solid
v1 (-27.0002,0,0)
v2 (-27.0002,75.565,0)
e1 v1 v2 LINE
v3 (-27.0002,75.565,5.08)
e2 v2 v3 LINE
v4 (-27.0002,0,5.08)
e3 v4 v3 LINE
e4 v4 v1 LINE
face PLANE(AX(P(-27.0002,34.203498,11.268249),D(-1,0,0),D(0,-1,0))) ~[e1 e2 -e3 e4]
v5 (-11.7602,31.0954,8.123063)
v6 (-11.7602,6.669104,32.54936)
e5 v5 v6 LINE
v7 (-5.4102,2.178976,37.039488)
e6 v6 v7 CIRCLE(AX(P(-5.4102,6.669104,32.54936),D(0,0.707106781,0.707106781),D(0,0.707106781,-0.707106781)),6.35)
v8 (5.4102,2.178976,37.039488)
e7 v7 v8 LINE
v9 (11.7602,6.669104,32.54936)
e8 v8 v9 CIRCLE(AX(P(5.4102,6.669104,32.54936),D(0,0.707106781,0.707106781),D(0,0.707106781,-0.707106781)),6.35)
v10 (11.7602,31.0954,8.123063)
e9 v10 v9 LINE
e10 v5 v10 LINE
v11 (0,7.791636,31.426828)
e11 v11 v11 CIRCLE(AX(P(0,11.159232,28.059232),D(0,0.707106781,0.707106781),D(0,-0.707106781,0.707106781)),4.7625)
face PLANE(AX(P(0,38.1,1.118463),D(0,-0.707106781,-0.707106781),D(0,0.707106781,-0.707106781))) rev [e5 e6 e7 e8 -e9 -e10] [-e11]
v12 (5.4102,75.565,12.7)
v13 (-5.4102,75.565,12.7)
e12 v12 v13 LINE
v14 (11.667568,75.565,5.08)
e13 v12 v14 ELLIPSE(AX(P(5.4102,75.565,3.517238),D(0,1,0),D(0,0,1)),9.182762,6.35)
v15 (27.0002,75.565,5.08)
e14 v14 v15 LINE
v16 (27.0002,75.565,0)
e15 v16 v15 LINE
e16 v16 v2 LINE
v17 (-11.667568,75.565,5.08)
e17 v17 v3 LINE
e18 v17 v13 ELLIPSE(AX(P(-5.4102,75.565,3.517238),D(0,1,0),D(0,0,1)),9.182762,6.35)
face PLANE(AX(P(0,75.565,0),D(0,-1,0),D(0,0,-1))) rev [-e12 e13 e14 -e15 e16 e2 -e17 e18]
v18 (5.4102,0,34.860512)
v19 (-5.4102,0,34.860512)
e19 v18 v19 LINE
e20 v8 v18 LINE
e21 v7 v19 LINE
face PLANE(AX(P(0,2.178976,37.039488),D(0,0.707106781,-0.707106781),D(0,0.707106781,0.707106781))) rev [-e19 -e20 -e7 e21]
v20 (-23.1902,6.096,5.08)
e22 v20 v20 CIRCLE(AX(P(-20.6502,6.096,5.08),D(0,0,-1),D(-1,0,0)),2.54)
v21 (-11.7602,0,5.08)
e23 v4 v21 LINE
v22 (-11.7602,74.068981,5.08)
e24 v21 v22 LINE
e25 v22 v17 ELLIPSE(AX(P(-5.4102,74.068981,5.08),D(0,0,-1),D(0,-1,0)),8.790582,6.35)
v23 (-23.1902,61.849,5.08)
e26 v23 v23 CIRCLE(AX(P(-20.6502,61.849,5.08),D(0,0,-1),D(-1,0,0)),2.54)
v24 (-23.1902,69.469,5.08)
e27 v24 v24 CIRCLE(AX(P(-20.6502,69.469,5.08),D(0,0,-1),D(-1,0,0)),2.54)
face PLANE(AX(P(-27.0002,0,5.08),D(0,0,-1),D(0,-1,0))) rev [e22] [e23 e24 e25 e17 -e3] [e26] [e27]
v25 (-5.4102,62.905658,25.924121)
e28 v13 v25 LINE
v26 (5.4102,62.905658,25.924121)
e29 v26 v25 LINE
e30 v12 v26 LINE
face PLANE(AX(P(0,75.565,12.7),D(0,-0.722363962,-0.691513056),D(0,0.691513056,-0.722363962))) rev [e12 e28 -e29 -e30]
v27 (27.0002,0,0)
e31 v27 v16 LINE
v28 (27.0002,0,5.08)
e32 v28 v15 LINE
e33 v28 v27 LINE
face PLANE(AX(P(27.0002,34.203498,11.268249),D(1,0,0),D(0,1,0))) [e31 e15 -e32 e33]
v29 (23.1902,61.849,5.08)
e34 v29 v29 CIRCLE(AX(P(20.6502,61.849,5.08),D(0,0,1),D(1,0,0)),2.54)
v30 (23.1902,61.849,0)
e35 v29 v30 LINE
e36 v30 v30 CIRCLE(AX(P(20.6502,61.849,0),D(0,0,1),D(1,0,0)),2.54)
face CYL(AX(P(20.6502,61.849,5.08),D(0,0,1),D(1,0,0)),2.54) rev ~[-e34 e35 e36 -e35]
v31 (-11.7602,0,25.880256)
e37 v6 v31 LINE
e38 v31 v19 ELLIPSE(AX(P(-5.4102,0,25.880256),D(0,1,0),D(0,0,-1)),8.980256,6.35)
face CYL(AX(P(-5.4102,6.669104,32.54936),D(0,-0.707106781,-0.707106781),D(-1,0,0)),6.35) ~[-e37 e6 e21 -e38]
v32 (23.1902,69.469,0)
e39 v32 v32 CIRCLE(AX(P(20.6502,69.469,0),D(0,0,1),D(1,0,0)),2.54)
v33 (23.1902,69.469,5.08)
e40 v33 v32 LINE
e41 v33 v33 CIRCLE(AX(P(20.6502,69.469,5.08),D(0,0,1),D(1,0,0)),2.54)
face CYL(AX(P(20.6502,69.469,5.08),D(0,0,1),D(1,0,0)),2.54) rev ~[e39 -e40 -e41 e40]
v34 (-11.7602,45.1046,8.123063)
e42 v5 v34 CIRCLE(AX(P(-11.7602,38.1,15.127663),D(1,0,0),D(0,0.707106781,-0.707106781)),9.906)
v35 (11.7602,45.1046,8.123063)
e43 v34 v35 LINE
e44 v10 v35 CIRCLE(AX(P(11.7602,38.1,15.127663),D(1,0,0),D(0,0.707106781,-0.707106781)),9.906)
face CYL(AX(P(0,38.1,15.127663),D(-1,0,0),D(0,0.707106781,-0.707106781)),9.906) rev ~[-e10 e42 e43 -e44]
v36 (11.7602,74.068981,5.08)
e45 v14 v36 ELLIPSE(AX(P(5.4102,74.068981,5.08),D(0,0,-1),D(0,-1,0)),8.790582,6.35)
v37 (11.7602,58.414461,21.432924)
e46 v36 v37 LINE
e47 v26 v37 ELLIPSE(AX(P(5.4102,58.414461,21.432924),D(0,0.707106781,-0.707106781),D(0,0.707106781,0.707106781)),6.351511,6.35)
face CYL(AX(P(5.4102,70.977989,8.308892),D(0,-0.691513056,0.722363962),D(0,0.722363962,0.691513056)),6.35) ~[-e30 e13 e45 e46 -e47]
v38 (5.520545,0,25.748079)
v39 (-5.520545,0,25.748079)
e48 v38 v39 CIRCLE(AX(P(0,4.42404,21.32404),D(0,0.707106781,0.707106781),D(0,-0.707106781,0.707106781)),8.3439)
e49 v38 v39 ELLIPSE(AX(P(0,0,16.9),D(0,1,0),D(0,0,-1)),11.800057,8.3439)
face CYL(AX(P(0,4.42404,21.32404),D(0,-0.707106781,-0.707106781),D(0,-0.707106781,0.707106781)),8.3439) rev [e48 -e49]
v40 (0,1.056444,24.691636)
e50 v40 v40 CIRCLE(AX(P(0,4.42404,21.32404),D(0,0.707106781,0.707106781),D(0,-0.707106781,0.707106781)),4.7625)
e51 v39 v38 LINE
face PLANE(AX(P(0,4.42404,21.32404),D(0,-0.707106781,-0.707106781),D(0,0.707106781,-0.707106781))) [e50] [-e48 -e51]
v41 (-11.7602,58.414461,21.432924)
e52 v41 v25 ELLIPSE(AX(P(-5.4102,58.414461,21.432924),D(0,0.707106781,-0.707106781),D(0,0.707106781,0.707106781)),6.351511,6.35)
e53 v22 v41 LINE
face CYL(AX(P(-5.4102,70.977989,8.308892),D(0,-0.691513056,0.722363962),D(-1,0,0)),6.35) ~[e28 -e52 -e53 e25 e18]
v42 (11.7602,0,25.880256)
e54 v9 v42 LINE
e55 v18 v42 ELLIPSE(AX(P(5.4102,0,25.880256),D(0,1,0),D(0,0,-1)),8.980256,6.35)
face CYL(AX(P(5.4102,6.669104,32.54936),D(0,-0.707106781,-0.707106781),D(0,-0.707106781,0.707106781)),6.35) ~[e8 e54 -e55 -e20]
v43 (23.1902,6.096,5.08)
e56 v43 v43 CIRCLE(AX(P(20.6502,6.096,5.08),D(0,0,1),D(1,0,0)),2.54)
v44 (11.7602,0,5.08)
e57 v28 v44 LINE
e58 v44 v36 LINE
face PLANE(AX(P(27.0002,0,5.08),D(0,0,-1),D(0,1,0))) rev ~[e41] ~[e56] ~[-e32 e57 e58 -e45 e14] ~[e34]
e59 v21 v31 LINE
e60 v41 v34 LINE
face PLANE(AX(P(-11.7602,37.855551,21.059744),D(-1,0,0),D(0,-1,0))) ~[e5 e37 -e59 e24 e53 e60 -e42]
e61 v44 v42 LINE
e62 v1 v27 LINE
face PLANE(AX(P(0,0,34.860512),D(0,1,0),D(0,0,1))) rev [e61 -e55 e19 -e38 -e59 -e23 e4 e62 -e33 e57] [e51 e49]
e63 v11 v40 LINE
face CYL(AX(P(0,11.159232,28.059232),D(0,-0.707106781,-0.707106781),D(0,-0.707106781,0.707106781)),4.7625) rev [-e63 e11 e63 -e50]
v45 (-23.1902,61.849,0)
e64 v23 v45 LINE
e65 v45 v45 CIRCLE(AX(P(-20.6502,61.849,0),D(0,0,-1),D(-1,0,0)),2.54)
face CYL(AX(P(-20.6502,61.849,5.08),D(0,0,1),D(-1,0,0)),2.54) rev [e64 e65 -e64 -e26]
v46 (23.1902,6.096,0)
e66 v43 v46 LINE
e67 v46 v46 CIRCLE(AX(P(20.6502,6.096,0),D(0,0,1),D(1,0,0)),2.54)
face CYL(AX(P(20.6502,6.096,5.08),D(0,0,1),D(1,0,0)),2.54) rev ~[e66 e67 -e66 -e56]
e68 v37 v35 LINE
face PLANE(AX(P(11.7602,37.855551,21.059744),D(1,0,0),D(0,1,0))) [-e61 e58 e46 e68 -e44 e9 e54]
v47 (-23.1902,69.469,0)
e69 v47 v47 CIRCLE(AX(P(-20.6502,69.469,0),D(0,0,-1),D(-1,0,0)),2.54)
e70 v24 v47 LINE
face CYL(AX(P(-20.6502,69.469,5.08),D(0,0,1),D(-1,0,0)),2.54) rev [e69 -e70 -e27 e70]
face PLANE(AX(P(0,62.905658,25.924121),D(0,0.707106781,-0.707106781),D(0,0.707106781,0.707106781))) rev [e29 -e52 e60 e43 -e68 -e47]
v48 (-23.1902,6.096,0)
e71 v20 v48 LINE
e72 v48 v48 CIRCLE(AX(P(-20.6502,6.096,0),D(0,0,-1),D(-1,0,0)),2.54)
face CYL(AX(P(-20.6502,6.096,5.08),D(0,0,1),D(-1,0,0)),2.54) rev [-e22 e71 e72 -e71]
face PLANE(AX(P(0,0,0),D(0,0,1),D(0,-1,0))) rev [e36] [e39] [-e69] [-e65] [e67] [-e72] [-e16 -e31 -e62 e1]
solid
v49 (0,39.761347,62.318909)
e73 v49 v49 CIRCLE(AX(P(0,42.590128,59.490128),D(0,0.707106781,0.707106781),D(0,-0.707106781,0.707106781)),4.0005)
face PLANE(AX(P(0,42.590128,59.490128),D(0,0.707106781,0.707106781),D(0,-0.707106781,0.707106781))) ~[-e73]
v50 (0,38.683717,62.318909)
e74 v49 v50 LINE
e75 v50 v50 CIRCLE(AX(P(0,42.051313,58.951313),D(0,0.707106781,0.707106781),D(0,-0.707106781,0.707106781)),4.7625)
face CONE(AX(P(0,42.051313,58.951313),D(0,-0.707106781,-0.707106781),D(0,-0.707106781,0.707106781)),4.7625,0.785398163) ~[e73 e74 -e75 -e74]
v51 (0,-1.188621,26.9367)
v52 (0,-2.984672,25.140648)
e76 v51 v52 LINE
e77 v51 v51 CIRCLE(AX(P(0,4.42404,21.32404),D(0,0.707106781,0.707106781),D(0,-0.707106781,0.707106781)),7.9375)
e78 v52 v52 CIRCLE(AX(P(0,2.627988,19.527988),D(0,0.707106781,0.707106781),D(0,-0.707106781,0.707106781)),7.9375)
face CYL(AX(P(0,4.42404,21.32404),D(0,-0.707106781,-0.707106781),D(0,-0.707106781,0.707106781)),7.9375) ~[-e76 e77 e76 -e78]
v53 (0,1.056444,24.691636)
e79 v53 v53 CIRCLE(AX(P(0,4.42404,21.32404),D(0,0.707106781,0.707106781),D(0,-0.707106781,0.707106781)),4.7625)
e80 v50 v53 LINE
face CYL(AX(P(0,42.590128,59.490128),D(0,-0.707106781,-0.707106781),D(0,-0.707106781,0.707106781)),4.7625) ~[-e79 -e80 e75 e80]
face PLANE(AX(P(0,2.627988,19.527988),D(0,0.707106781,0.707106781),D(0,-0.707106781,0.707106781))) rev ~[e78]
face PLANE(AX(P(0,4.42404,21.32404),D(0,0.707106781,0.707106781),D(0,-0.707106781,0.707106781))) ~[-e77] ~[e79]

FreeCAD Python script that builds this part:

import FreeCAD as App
import Part
import Sketcher
Q = App.Units.Quantity


def edges_at(feature, points):
    """Names of the edges that pass closest to the given points."""
    edges = feature.Shape.Edges
    near = lambda p: min(range(len(edges)), key=lambda i: edges[i].distToShape(Part.Vertex(*p))[0])
    return sorted({f"Edge{near(p) + 1}" for p in points})


def add_polygon(sketch, points):
    """Adds a closed chain of lines whose ends are joined by coincident constraints."""
    first, n = sketch.GeometryCount, len(points)
    for a, b in zip(points, points[1:] + points[:1]):
        sketch.addGeometry(Part.LineSegment(App.Vector(*a, 0), App.Vector(*b, 0)), False)
    for i in range(n):
        sketch.addConstraint(Sketcher.Constraint("Coincident", first + i, 2, first + (i + 1) % n, 1))

doc = App.newDocument("Part")
body = doc.addObject("PartDesign::Body", "Body")

# Sketch on YZ plane
sketch1 = body.newObject("Sketcher::SketchObject", "Sketch")
sketch1.AttachmentSupport = (doc.getObject("YZ_Plane"), [""])
sketch1.MapMode = "FlatFace"
add_polygon(sketch1, [(0, 34.9), (0, 0), (75.6, 0), (75.6, 12.7), (62.9, 25.9), (38.1, 1.1), (2.2, 37)])  # lines 0-6
sketch1.addConstraint([
    Sketcher.Constraint("Vertical", 0),
    Sketcher.Constraint("Horizontal", 1),
    Sketcher.Constraint("Vertical", 2),
    Sketcher.Constraint("Coincident", 0, 2, -1, 1),
    Sketcher.Constraint("Perpendicular", 4, 5),
    Sketcher.Constraint("Perpendicular", 5, 6),
    Sketcher.Constraint("Distance", 5, Q("2 in")),
    Sketcher.Constraint("DistanceY", 2, 1, 2, 2, Q("0.5 in")),
    Sketcher.Constraint("Angle", 4, Q("-135 deg")),
    Sketcher.Constraint("DistanceX", -1, 1, 4, 2, Q("1.5 in")),
    Sketcher.Constraint("DistanceX", 1, 1, 1, 2, Q("2.975 in")),
    Sketcher.Constraint("Angle", 3, Q("133.75 deg")),
    Sketcher.Constraint("Distance", 3, Q("18.306729 mm")),
])
pad1 = body.newObject("PartDesign::Pad", "Pad")
pad1.Profile = sketch1
pad1.Length = Q("1.063 in")
doc.recompute()

fillet = body.newObject("PartDesign::Fillet", "Fillet")
fillet.Base = (pad1, edges_at(pad1, [(13.5, 38.1, 1.118)]))
fillet.Radius = Q("0.39 in")

# Sketch on YZ plane
sketch2 = body.newObject("Sketcher::SketchObject", "Sketch001")
sketch2.AttachmentSupport = (doc.getObject("YZ_Plane"), [""])
sketch2.MapMode = "FlatFace"
sketch2.AttachmentOffset = App.Placement(App.Vector(0, 0, 1.063 * 25.4), App.Rotation())
add_polygon(sketch2, [(0, 37), (0, 5), (76, 5), (76, 37)])  # lines 0-3
sketch2.addConstraint([
    Sketcher.Constraint("Vertical", 0),
    Sketcher.Constraint("Horizontal", 1),
    Sketcher.Constraint("Vertical", 2),
    Sketcher.Constraint("Horizontal", 3),
    Sketcher.Constraint("PointOnObject", 0, 2, -2),
    Sketcher.Constraint("DistanceY", -1, 1, 0, 2, Q("0.2 in")),
    Sketcher.Constraint("DistanceX", 1, 1, 1, 2, Q("75.711102 mm")),
    Sketcher.Constraint("DistanceY", 0, 2, 0, 1, Q("31.959488 mm")),
])
pocket1 = body.newObject("PartDesign::Pocket", "Pocket")
pocket1.Profile = sketch2
pocket1.Length = Q("0.6 in")

# Sketch on XY plane
sketch3 = body.newObject("Sketcher::SketchObject", "Sketch002")
sketch3.AttachmentSupport = (doc.getObject("XY_Plane"), [""])
sketch3.MapMode = "FlatFace"
sketch3.AttachmentOffset = App.Placement(App.Vector(0, 0, 0.2 * 25.4), App.Rotation())
sketch3.addGeometry([
    Part.Circle(App.Vector(20.7, 69.5, 0), App.Vector(0, 0, 1), 2.5),
    Part.Circle(App.Vector(20.7, 61.8, 0), App.Vector(0, 0, 1), 2.5),
    Part.Circle(App.Vector(20.7, 6.1, 0), App.Vector(0, 0, 1), 2.5),
], False)
sketch3.addConstraint([
    Sketcher.Constraint("Equal", 0, 1),
    Sketcher.Constraint("Equal", 1, 2),
    Sketcher.Constraint("Vertical", 0, 3, 1, 3),
    Sketcher.Constraint("Vertical", 1, 3, 2, 3),
    Sketcher.Constraint("Diameter", 0, Q("0.2 in")),
    Sketcher.Constraint("DistanceY", 1, 3, 0, 3, Q("0.3 in")),
    Sketcher.Constraint("DistanceY", -1, 1, 2, 3, Q("0.24 in")),
    Sketcher.Constraint("DistanceX", -1, 1, 0, 3, Q("0.813 in")),
    Sketcher.Constraint("DistanceY", -1, 1, 0, 3, Q("2.735 in")),
])
pocket2 = body.newObject("PartDesign::Pocket", "Pocket001")
pocket2.Profile = sketch3
pocket2.Type = "ThroughAll"
body2 = doc.addObject("PartDesign::Body", "Body001")
doc.recompute()

body2.BaseFeature = body
doc.recompute()

mirroring = doc.addObject("Part::Mirroring", "Mirroring")
mirroring.Source = body
mirroring.Base = App.Vector(0, 0, 0)
mirroring.Normal = App.Vector(1, 0, 0)
body3 = doc.addObject("PartDesign::Body", "Body002")
body3.BaseFeature = mirroring
boolean = body2.newObject("PartDesign::Boolean", "Boolean")
boolean.Type = "Fuse"
boolean.addObjects([body3])
doc.recompute()

fillet2 = body2.newObject("PartDesign::Fillet", "Fillet001")
fillet2.Base = (boolean, edges_at(boolean, [
    (-11.76, 69.235, 19.312),
    (11.76, 69.235, 19.312),
    (-11.76, 1.089, 35.95),
    (11.76, 1.089, 35.95),
]))
fillet2.Radius = Q("0.25 in")

# Sketch on YZ plane
sketch4 = body2.newObject("Sketcher::SketchObject", "Sketch003")
sketch4.AttachmentSupport = (doc.getObject("YZ_Plane001"), [""])
sketch4.MapMode = "FlatFace"
add_polygon(sketch4, [(-8.4, 8.4), (11.2, 28.1), (7.8, 31.4), (1.1, 24.7), (-1.5, 27.2), (-14.4, 14.4)])  # lines 0-5
sketch4.addGeometry(Part.LineSegment(App.Vector(-8.4, 8.5, 0), App.Vector(11.2, 28.1, 0)), True)  # axis
sketch4.addConstraint([
    Sketcher.Constraint("Coincident", 6, 1, 5, 2),
    Sketcher.Constraint("Coincident", 6, 2, 0, 2),
    Sketcher.Constraint("Perpendicular", 0, 1),
    Sketcher.Constraint("Perpendicular", 1, 2),
    Sketcher.Constraint("Perpendicular", 2, 3),
    Sketcher.Constraint("Perpendicular", 3, 4),
    Sketcher.Constraint("Perpendicular", 4, 5),
    Sketcher.Constraint("Angle", 0, Q("45 deg")),
    Sketcher.Constraint("Distance", 1, Q("0.1875 in")),
    Sketcher.Constraint("Distance", 2, Q("0.375 in")),
    Sketcher.Constraint("Distance", 3, Q("0.141 in")),
    Sketcher.Constraint("DistanceX", 5, 2, -1, 1, Q("8.45 mm")),
    Sketcher.Constraint("DistanceY", -1, 1, 5, 2, Q("8.45 mm")),
    Sketcher.Constraint("DistanceY", 4, 2, 1, 2, Q("17.076799 mm")),
])
groove = body2.newObject("PartDesign::Groove", "Groove")
groove.Profile = sketch4
groove.ReferenceAxis = (sketch4, ["Axis0"])
groove.Angle = 360
body4 = doc.addObject("PartDesign::Body", "Body003")

# Sketch on YZ plane
sketch5 = body4.newObject("Sketcher::SketchObject", "Sketch004")
sketch5.AttachmentSupport = (doc.getObject("YZ_Plane003"), [""])
sketch5.MapMode = "FlatFace"
add_polygon(sketch5, [(1.1, 24.7), (-1.2, 26.9), (-3, 25.1), (2.6, 19.5), (42.6, 59.5), (39.2, 62.9)])  # lines 0-5
sketch5.addGeometry(Part.LineSegment(App.Vector(2.6, 19.5, 0), App.Vector(42.6, 59.5, 0)), True)  # axis
sketch5.addConstraint([
    Sketcher.Constraint("Coincident", 6, 1, 2, 2),
    Sketcher.Constraint("Coincident", 6, 2, 3, 2),
    Sketcher.Constraint("Perpendicular", 0, 1),
    Sketcher.Constraint("Perpendicular", 1, 2),
    Sketcher.Constraint("Perpendicular", 2, 3),
    Sketcher.Constraint("Perpendicular", 3, 4),
    Sketcher.Constraint("Perpendicular", 4, 5),
    Sketcher.Constraint("Angle", 0, Q("135 deg")),
    Sketcher.Constraint("Distance", 1, Q("0.1 in")),
    Sketcher.Constraint("Distance", 0, Q("0.125 in")),
    Sketcher.Constraint("Distance", 2, Q("0.3125 in")),
    Sketcher.Constraint("Distance", 3, Q("2.225 in")),
    Sketcher.Constraint("DistanceY", -1, 1, 0, 2, Q("1.0605 in")),
    Sketcher.Constraint("DistanceX", 0, 2, -1, 1, Q("1.188621 mm")),
])
revolution = body4.newObject("PartDesign::Revolution", "Revolution")
revolution.Profile = sketch5
revolution.ReferenceAxis = (sketch5, ["Axis0"])
revolution.Angle = 360
doc.recompute()

chamfer = body4.newObject("PartDesign::Chamfer", "Chamfer")
chamfer.Base = (revolution, edges_at(revolution, [(0, 45.958, 56.123)]))
chamfer.Size = Q("0.03 in")
mirroring.Visibility = False

doc.recompute()
